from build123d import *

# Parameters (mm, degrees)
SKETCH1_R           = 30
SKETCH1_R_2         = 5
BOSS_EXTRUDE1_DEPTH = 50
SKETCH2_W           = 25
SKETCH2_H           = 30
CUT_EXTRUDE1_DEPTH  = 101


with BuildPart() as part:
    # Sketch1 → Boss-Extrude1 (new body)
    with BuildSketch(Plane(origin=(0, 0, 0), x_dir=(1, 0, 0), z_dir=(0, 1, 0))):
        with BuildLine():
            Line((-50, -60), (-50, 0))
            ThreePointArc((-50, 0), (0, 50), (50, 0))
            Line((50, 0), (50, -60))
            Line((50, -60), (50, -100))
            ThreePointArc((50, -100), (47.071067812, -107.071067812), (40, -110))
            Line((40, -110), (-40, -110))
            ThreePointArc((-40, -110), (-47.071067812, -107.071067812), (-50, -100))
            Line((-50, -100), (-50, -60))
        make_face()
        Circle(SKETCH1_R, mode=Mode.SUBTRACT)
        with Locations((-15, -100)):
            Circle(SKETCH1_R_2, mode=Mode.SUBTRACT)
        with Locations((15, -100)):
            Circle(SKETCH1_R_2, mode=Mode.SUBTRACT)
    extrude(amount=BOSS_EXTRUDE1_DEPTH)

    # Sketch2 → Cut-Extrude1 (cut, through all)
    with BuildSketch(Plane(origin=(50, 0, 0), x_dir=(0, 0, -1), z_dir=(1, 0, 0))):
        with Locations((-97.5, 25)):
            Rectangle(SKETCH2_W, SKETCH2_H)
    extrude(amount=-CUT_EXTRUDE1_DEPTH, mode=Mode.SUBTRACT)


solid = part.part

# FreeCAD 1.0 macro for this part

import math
import FreeCAD as App
import Part
import Sketcher

doc = App.newDocument("Part")
body = doc.addObject("PartDesign::Body", "Body")

sketch1 = doc.addObject("Sketcher::SketchObject", "Sketch")
body.addObject(sketch1)
sketch1.AttachmentSupport = (doc.XZ_Plane, [""])
sketch1.MapMode = "FlatFace"
sketch1.addGeometry([
    Part.ArcOfCircle(Part.Circle(App.Vector(0, 0, 0), App.Vector(0, 0, 1), 50), math.radians(180), math.radians(360)),
    Part.LineSegment(App.Vector(-50, 0, 0), App.Vector(-50, 100, 0)),
    Part.ArcOfCircle(Part.Circle(App.Vector(-40, 100, 0), App.Vector(0, 0, 1), 10), math.radians(90), math.radians(180)),
    Part.LineSegment(App.Vector(-40, 110, 0), App.Vector(40, 110, 0)),
    Part.ArcOfCircle(Part.Circle(App.Vector(40, 100, 0), App.Vector(0, 0, 1), 10), math.radians(0), math.radians(90)),
    Part.LineSegment(App.Vector(50, 100, 0), App.Vector(50, 0, 0)),
    Part.Circle(App.Vector(15, 100, 0), App.Vector(0, 0, 1), 5),
    Part.Circle(App.Vector(-15, 100, 0), App.Vector(0, 0, 1), 5),
    Part.Circle(App.Vector(0, 0, 0), App.Vector(0, 0, 1), 30),
], False)
sketch1.addConstraint([
    Sketcher.Constraint("Tangent", 0, 1, 1, 1),
    Sketcher.Constraint("Tangent", 1, 2, 2, 2),
    Sketcher.Constraint("Tangent", 2, 1, 3, 1),
    Sketcher.Constraint("Tangent", 3, 2, 4, 2),
    Sketcher.Constraint("Tangent", 4, 1, 5, 1),
    Sketcher.Constraint("Tangent", 5, 2, 0, 2),
    Sketcher.Constraint("Vertical", 1),
    Sketcher.Constraint("Horizontal", 3),
    Sketcher.Constraint("Vertical", 5),
    Sketcher.Constraint("Coincident", 0, 3, -1, 1),
    Sketcher.Constraint("Coincident", 8, 3, -1, 1),
    Sketcher.Constraint("Equal", 2, 4),
    Sketcher.Constraint("Equal", 6, 7),
    Sketcher.Constraint("Symmetric", 6, 3, 7, 3, -2),
    Sketcher.Constraint("Horizontal", 4, 3, 6, 3),
    Sketcher.Constraint("Diameter", 6, 10.0),
    Sketcher.Constraint("Diameter", 8, 60.0),
    Sketcher.Constraint("Radius", 0, 50.0),
    Sketcher.Constraint("Radius", 2, 10.0),
    Sketcher.Constraint("DistanceY", 1, 1, 1, 2, 100.0),
    Sketcher.Constraint("DistanceX", -1, 1, 6, 3, 15.0),
])
pad1 = doc.addObject("PartDesign::Pad", "Pad")
body.addObject(pad1)
pad1.Profile = sketch1
pad1.Length = 50
pad1.Reversed = True

sketch2 = doc.addObject("Sketcher::SketchObject", "Sketch001")
body.addObject(sketch2)
sketch2.AttachmentSupport = (doc.YZ_Plane, [""])
sketch2.MapMode = "FlatFace"
sketch2.AttachmentOffset = App.Placement(App.Vector(0, 0, 50), App.Rotation())
sketch2.addGeometry([
    Part.LineSegment(App.Vector(40, 110, 0), App.Vector(10, 110, 0)),
    Part.LineSegment(App.Vector(10, 110, 0), App.Vector(10, 85, 0)),
    Part.LineSegment(App.Vector(10, 85, 0), App.Vector(40, 85, 0)),
    Part.LineSegment(App.Vector(40, 85, 0), App.Vector(40, 110, 0)),
], False)
sketch2.addConstraint([
    Sketcher.Constraint("Coincident", 0, 2, 1, 1),
    Sketcher.Constraint("Coincident", 1, 2, 2, 1),
    Sketcher.Constraint("Coincident", 2, 2, 3, 1),
    Sketcher.Constraint("Coincident", 3, 2, 0, 1),
    Sketcher.Constraint("Horizontal", 0),
    Sketcher.Constraint("Vertical", 1),
    Sketcher.Constraint("Horizontal", 2),
    Sketcher.Constraint("Vertical", 3),
    Sketcher.Constraint("DistanceX", 0, 2, 0, 1, 30.0),
    Sketcher.Constraint("DistanceY", 1, 2, 1, 1, 25.0),
    Sketcher.Constraint("DistanceX", -1, 1, 0, 2, 10.0),
    Sketcher.Constraint("DistanceY", -1, 1, 0, 2, 110.0),
])
pocket1 = doc.addObject("PartDesign::Pocket", "Pocket")
body.addObject(pocket1)
pocket1.Profile = sketch2
pocket1.Type = "ThroughAll"

doc.recompute()
